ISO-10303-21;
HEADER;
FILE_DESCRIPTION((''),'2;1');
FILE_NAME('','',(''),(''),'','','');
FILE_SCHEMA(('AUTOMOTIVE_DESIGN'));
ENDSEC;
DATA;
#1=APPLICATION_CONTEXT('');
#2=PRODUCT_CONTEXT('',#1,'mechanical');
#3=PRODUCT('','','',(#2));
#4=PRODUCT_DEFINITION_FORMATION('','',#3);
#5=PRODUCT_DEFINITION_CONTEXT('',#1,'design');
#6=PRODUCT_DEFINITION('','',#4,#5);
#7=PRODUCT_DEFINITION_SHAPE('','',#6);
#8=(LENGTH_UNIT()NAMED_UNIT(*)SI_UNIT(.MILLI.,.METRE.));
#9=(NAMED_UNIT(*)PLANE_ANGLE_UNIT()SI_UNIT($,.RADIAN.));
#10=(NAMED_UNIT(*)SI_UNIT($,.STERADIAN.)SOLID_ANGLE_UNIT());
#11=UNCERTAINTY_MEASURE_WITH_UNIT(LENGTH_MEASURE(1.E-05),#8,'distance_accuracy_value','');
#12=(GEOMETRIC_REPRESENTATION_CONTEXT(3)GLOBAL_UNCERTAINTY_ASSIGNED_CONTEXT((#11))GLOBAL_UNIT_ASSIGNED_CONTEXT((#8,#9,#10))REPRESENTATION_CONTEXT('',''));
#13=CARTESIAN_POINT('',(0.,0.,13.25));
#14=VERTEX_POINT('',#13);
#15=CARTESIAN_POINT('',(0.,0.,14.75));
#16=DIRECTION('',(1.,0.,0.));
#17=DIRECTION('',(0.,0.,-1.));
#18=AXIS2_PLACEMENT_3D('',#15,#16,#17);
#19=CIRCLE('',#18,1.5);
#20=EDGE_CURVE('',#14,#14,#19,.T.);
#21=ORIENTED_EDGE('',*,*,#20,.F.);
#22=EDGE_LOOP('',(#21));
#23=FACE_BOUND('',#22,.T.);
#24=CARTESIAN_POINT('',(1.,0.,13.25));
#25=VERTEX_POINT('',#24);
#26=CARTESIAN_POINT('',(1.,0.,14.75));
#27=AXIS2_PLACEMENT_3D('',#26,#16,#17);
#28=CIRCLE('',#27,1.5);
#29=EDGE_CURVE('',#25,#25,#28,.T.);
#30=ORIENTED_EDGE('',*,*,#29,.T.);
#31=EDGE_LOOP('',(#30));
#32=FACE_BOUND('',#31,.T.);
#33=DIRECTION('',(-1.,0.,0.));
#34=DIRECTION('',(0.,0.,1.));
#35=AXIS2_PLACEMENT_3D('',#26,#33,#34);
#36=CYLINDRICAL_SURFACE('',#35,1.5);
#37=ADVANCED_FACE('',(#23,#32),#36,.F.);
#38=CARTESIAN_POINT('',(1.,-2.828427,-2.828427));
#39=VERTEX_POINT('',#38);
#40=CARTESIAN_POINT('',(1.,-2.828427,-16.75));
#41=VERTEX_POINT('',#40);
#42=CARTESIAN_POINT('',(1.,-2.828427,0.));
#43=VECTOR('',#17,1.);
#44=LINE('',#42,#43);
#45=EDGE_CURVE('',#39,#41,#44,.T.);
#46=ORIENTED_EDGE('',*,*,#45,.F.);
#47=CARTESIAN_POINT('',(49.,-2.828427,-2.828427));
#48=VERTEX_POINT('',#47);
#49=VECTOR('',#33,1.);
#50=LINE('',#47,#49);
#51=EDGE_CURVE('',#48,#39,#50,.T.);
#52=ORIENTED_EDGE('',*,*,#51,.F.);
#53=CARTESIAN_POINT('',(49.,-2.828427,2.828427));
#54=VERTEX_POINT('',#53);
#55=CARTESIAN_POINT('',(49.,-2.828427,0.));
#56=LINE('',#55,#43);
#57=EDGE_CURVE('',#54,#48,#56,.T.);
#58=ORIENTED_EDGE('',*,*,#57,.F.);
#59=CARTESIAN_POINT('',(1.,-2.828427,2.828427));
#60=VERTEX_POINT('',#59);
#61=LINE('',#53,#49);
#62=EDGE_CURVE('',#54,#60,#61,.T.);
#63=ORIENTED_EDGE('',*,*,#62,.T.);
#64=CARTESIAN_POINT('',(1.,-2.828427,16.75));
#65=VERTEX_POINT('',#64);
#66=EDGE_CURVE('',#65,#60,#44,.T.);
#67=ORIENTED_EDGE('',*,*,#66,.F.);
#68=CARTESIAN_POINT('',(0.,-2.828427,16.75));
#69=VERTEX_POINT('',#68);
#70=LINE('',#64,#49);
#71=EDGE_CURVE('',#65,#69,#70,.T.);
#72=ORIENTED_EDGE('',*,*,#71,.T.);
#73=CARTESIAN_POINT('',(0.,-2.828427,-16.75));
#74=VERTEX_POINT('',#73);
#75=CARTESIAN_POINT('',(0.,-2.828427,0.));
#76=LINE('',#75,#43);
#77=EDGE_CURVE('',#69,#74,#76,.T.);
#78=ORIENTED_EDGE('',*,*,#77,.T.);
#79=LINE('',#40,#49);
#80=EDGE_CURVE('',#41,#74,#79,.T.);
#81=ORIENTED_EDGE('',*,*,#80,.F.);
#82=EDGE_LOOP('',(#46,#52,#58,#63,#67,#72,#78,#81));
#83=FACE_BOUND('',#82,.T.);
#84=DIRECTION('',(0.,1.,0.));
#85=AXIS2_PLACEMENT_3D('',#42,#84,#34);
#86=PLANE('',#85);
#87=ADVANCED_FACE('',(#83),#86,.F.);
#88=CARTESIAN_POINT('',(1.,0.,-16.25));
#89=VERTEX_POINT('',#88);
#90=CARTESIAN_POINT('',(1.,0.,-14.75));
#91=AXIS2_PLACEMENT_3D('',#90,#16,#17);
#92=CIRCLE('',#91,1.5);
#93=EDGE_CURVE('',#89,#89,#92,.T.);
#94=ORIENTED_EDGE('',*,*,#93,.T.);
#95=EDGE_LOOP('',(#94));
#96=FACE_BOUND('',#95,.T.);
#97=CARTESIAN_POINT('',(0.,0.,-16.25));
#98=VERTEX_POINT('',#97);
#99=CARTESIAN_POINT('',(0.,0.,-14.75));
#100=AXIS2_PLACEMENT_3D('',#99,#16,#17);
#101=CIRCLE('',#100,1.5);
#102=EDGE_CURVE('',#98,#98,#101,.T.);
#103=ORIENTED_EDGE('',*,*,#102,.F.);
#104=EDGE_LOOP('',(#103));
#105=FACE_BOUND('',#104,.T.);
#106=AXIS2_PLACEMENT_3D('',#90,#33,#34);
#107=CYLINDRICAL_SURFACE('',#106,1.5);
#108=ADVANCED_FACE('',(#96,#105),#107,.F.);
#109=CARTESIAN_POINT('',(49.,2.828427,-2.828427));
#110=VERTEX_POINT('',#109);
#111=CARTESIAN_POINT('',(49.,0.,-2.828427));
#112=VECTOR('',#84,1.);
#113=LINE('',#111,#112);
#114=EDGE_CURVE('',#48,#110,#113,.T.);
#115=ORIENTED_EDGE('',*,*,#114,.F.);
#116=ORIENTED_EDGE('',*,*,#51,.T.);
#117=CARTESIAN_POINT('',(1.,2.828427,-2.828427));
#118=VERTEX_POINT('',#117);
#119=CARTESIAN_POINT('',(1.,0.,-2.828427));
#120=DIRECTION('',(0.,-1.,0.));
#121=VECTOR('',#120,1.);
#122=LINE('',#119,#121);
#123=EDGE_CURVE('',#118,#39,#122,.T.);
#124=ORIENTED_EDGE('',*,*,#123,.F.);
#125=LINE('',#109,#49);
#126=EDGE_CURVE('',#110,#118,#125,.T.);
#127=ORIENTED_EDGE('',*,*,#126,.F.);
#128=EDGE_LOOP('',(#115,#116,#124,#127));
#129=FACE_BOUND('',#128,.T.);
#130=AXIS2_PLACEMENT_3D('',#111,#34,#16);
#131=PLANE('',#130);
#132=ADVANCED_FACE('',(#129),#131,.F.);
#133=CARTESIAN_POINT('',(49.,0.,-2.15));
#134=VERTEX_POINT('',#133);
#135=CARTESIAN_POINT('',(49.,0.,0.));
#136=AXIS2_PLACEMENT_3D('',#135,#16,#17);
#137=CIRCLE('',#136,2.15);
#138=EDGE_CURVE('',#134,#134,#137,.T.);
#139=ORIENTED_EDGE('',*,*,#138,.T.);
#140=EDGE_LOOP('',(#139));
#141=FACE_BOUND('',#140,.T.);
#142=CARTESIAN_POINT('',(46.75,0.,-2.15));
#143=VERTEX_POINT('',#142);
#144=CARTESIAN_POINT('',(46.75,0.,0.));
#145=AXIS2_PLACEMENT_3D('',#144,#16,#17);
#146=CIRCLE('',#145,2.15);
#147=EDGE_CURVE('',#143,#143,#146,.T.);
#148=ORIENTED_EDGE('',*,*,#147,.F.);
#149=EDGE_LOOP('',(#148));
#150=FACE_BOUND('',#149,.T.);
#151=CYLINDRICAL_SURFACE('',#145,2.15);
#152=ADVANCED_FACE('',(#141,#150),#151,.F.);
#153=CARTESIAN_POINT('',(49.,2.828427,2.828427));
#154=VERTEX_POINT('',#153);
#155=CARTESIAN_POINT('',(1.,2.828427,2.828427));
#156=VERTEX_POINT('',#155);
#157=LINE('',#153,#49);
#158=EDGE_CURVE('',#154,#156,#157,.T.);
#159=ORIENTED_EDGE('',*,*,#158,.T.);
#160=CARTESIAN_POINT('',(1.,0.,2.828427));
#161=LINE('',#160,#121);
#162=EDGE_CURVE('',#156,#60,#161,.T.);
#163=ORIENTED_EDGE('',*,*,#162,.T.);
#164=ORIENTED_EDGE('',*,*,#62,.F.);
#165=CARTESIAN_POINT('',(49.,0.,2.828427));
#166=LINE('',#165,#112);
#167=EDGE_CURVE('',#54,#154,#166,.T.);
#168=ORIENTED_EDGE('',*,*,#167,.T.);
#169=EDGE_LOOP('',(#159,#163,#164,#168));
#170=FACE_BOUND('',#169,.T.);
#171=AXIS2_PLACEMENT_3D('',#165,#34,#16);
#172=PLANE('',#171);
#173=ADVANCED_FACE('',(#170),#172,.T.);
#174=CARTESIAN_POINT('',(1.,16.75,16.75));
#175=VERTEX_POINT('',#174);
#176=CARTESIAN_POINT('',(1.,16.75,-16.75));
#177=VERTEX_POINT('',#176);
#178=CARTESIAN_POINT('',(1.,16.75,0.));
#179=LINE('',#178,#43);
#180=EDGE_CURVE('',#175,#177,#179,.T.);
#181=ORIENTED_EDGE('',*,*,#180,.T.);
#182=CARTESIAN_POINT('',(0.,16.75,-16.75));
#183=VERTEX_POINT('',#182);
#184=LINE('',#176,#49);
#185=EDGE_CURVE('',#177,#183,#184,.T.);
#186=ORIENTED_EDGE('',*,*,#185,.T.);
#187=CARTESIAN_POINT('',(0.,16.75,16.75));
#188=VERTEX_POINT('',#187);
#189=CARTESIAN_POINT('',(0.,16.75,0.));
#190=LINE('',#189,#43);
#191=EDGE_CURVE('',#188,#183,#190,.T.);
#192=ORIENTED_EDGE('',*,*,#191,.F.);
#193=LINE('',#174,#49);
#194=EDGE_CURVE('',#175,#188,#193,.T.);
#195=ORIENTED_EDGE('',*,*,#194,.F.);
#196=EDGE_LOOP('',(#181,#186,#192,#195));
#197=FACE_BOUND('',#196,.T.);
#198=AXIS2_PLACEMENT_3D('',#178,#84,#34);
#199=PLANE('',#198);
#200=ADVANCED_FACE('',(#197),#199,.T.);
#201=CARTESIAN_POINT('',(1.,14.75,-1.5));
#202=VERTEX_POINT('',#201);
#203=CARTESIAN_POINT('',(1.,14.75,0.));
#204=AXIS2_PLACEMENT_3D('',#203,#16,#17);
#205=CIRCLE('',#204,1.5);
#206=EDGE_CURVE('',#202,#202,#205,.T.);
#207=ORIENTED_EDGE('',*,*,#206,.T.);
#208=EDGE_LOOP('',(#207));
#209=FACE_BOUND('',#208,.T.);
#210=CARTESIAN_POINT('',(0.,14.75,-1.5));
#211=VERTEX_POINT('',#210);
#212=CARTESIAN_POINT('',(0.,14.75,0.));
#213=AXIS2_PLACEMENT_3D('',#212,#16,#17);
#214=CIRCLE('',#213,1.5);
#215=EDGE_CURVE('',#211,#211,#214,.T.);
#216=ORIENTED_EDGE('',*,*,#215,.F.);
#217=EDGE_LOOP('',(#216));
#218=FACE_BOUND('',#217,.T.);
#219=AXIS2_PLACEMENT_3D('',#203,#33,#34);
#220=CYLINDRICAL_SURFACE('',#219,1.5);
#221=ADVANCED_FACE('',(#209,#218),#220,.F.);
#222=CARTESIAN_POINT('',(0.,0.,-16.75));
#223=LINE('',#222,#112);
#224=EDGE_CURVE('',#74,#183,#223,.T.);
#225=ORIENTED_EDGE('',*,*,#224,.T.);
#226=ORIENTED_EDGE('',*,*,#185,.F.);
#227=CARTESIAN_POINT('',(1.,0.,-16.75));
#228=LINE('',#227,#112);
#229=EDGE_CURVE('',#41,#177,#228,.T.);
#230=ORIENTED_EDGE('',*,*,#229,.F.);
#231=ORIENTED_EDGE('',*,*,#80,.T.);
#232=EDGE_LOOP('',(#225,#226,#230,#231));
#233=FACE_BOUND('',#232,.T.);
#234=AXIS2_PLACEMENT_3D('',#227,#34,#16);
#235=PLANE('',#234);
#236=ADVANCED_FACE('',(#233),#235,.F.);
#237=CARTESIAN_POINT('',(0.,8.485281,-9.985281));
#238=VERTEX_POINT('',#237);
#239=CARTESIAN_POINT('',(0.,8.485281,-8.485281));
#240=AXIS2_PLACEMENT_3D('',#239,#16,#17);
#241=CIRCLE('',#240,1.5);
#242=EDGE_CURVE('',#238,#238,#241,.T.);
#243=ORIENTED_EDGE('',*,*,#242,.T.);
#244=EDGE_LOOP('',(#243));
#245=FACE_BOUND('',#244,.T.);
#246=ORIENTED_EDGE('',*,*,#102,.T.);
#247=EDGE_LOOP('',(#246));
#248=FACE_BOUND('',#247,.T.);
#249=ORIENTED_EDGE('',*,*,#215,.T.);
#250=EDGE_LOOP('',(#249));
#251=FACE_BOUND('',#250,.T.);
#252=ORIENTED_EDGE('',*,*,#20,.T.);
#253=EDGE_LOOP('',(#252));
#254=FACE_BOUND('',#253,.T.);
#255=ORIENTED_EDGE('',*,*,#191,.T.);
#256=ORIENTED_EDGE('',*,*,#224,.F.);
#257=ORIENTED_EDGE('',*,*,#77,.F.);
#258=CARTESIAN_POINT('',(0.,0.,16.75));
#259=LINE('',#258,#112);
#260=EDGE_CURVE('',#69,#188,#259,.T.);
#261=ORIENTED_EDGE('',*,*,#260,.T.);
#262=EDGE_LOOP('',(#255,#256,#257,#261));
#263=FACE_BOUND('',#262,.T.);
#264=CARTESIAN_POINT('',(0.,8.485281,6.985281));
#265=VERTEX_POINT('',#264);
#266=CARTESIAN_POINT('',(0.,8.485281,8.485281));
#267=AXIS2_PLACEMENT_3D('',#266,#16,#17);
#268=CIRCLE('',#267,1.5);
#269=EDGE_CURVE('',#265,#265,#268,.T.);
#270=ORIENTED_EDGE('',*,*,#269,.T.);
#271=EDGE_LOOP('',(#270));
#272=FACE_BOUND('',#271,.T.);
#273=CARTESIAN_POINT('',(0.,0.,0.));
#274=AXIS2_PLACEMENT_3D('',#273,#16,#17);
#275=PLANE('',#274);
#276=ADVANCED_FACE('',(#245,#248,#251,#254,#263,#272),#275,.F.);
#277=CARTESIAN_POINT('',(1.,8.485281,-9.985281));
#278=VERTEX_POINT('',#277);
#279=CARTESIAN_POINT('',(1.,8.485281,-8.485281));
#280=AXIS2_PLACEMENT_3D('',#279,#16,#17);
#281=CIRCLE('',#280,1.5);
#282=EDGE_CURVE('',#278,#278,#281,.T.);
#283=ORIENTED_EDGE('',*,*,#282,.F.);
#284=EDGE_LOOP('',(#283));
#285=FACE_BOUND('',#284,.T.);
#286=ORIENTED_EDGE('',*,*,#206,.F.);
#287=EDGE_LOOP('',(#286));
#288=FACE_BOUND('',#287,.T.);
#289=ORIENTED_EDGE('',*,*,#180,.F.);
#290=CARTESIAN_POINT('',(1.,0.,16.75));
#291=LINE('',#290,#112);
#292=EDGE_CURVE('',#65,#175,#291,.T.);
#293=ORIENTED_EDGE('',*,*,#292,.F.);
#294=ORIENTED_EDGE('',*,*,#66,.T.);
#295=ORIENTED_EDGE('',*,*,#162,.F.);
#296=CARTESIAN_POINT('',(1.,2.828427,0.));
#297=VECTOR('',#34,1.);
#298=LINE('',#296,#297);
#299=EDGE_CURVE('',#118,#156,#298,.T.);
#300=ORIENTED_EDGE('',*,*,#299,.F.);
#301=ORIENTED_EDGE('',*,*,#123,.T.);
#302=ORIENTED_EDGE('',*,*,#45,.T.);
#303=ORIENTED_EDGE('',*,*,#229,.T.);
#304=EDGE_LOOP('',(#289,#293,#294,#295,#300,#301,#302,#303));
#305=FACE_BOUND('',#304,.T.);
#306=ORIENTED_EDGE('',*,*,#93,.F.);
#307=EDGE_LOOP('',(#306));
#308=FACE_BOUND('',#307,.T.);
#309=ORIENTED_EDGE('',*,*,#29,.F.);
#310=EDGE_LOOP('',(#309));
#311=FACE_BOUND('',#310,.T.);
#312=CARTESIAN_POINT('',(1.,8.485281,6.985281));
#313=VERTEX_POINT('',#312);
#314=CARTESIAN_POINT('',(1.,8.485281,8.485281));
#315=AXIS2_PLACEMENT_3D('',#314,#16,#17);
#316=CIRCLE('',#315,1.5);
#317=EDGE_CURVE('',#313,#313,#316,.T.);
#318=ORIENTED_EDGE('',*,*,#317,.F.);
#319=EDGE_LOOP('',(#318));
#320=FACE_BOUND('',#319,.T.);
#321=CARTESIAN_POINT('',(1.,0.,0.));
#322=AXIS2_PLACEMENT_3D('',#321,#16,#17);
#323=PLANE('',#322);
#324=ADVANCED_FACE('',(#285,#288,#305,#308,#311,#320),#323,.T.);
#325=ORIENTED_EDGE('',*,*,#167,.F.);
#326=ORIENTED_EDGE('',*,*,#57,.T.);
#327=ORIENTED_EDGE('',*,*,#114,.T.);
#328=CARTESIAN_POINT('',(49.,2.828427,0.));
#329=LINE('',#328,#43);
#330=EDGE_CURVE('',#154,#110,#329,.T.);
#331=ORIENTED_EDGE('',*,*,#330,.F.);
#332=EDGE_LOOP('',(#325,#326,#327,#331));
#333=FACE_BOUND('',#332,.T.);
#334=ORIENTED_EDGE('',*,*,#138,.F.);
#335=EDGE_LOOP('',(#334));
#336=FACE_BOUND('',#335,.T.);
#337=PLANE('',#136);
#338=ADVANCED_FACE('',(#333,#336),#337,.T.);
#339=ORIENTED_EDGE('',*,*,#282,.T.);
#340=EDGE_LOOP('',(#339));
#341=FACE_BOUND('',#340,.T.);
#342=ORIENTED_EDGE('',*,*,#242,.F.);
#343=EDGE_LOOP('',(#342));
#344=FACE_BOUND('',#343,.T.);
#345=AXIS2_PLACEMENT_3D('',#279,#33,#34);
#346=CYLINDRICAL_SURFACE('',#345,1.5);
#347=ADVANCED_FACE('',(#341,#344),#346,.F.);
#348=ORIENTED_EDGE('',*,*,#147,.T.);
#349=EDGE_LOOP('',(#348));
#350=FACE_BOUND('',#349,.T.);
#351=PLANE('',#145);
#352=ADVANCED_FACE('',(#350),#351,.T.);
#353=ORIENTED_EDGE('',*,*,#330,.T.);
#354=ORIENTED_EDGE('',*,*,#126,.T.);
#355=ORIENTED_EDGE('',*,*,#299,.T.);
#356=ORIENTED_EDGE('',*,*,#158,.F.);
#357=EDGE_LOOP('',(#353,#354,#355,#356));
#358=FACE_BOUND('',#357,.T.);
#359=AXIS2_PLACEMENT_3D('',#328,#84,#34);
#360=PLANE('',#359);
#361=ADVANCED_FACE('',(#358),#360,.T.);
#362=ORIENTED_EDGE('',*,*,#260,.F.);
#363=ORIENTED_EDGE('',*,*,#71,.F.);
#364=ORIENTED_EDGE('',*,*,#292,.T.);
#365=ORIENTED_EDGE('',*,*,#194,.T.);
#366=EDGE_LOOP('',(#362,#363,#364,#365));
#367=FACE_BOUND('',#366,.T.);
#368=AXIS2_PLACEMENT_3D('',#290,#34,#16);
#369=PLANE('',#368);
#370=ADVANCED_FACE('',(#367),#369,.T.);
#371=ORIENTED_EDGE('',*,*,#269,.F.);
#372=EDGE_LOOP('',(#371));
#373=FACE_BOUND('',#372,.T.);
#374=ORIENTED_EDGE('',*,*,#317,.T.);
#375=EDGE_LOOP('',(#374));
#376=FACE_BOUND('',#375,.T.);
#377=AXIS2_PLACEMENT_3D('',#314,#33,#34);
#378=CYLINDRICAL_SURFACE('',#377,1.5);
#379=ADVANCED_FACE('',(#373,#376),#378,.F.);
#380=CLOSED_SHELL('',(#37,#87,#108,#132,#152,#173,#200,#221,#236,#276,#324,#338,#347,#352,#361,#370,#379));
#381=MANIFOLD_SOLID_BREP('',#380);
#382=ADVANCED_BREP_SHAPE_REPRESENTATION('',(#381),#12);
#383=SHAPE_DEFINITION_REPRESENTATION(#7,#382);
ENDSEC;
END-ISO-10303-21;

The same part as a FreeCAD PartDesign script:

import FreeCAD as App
import Part
import Sketcher

V = App.Vector
Q = App.Units.Quantity


def add_polygon(sketch, points):
    """Adds a closed chain of lines whose ends are joined by coincident constraints."""
    first, n = sketch.GeometryCount, len(points)
    for a, b in zip(points, points[1:] + points[:1]):
        sketch.addGeometry(Part.LineSegment(App.Vector(*a, 0), App.Vector(*b, 0)), False)
    for i in range(n):
        sketch.addConstraint(Sketcher.Constraint("Coincident", first + i, 2, first + (i + 1) % n, 1))

doc = App.newDocument("Part")
body = doc.addObject("PartDesign::Body", "Body")

# Sketch on YZ plane
sketch1 = body.newObject("Sketcher::SketchObject", "Sketch")
sketch1.AttachmentSupport = (doc.getObject("YZ_Plane"), [""])
sketch1.MapMode = "FlatFace"
add_polygon(sketch1, [(16.8, 16.8), (-2.8, 16.8), (-2.8, 2.8), (-2.8, -2.8), (-2.8, -16.8), (16.8, -16.8)])  # lines 0-5
sketch1.addGeometry(Part.Circle(V(0, 14.8, 0), V(0, 0, 1), 1.5), False)  # 6
sketch1.addGeometry(Part.Circle(V(0, -14.8, 0), V(0, 0, 1), 1.5), False)  # 7
sketch1.addGeometry(Part.Circle(V(8.5, 8.5, 0), V(0, 0, 1), 1.5), False)  # 8
sketch1.addGeometry(Part.Circle(V(8.5, -8.5, 0), V(0, 0, 1), 1.5), False)  # 9
sketch1.addGeometry(Part.Circle(V(14.8, 0, 0), V(0, 0, 1), 1.5), False)  # 10
sketch1.addConstraint([
    Sketcher.Constraint("Horizontal", 0),
    Sketcher.Constraint("Vertical", 1),
    Sketcher.Constraint("Vertical", 2),
    Sketcher.Constraint("Vertical", 3),
    Sketcher.Constraint("Horizontal", 4),
    Sketcher.Constraint("Vertical", 5),
    Sketcher.Constraint("Equal", 6, 7),
    Sketcher.Constraint("Equal", 7, 8),
    Sketcher.Constraint("Equal", 8, 9),
    Sketcher.Constraint("Equal", 9, 10),
    Sketcher.Constraint("Symmetric", 6, 3, 7, 3, -1, 1),
    Sketcher.Constraint("Symmetric", 8, 3, 9, 3, -1),
    Sketcher.Constraint("PointOnObject", 6, 3, -2),
    Sketcher.Constraint("PointOnObject", 10, 3, -1),
    Sketcher.Constraint("Equal", 1, 3),
    Sketcher.Constraint("Diameter", 6, Q("3 mm")),
    Sketcher.Constraint("DistanceY", 5, 1, 5, 2, Q("33.5 mm")),
    Sketcher.Constraint("DistanceY", 6, 3, 0, 2, Q("2 mm")),
    Sketcher.Constraint("DistanceY", 3, 2, 7, 3, Q("2 mm")),
    Sketcher.Constraint("DistanceX", 10, 3, 4, 2, Q("2 mm")),
    Sketcher.Constraint("DistanceX", -1, 1, 10, 3, Q("14.75 mm")),
    Sketcher.Constraint("DistanceX", 0, 2, 0, 1, Q("19.578427 mm")),
    Sketcher.Constraint("DistanceY", 1, 2, 1, 1, Q("13.921573 mm")),
    Sketcher.Constraint("DistanceX", -1, 1, 8, 3, Q("8.485281 mm")),
    Sketcher.Constraint("DistanceY", -1, 1, 8, 3, Q("8.485281 mm")),
])
pad1 = body.newObject("PartDesign::Pad", "Pad")
pad1.Profile = sketch1
pad1.Length = 1

# Sketch on YZ plane
sketch2 = body.newObject("Sketcher::SketchObject", "Sketch001")
sketch2.AttachmentSupport = (doc.getObject("YZ_Plane"), [""])
sketch2.MapMode = "FlatFace"
add_polygon(sketch2, [(3, 3), (-3, 3), (-3, -3), (3, -3)])  # lines 0-3
sketch2.addConstraint([
    Sketcher.Constraint("Horizontal", 0),
    Sketcher.Constraint("Vertical", 1),
    Sketcher.Constraint("Horizontal", 2),
    Sketcher.Constraint("Vertical", 3),
    Sketcher.Constraint("Symmetric", 0, 2, 2, 2, -1, 1),
    Sketcher.Constraint("Equal", 2, 1),
    Sketcher.Constraint("DistanceX", 0, 2, 0, 1, Q("5.656854 mm")),
])
pad2 = body.newObject("PartDesign::Pad", "Pad001")
pad2.Profile = sketch2
pad2.Length = 49

# Sketch on YZ plane
sketch3 = body.newObject("Sketcher::SketchObject", "Sketch002")
sketch3.AttachmentSupport = (doc.getObject("YZ_Plane"), [""])
sketch3.MapMode = "FlatFace"
sketch3.AttachmentOffset = App.Placement(V(0, 0, 49), App.Rotation())
sketch3.addGeometry(Part.Circle(V(0, 0, 0), V(0, 0, 1), 2.1), False)
sketch3.addConstraint([
    Sketcher.Constraint("Coincident", 0, 3, -1, 1),
    Sketcher.Constraint("Diameter", 0, Q("4.3 mm")),
])
pocket1 = body.newObject("PartDesign::Pocket", "Pocket")
pocket1.Profile = sketch3
pocket1.Length = 2.25

doc.recompute()
